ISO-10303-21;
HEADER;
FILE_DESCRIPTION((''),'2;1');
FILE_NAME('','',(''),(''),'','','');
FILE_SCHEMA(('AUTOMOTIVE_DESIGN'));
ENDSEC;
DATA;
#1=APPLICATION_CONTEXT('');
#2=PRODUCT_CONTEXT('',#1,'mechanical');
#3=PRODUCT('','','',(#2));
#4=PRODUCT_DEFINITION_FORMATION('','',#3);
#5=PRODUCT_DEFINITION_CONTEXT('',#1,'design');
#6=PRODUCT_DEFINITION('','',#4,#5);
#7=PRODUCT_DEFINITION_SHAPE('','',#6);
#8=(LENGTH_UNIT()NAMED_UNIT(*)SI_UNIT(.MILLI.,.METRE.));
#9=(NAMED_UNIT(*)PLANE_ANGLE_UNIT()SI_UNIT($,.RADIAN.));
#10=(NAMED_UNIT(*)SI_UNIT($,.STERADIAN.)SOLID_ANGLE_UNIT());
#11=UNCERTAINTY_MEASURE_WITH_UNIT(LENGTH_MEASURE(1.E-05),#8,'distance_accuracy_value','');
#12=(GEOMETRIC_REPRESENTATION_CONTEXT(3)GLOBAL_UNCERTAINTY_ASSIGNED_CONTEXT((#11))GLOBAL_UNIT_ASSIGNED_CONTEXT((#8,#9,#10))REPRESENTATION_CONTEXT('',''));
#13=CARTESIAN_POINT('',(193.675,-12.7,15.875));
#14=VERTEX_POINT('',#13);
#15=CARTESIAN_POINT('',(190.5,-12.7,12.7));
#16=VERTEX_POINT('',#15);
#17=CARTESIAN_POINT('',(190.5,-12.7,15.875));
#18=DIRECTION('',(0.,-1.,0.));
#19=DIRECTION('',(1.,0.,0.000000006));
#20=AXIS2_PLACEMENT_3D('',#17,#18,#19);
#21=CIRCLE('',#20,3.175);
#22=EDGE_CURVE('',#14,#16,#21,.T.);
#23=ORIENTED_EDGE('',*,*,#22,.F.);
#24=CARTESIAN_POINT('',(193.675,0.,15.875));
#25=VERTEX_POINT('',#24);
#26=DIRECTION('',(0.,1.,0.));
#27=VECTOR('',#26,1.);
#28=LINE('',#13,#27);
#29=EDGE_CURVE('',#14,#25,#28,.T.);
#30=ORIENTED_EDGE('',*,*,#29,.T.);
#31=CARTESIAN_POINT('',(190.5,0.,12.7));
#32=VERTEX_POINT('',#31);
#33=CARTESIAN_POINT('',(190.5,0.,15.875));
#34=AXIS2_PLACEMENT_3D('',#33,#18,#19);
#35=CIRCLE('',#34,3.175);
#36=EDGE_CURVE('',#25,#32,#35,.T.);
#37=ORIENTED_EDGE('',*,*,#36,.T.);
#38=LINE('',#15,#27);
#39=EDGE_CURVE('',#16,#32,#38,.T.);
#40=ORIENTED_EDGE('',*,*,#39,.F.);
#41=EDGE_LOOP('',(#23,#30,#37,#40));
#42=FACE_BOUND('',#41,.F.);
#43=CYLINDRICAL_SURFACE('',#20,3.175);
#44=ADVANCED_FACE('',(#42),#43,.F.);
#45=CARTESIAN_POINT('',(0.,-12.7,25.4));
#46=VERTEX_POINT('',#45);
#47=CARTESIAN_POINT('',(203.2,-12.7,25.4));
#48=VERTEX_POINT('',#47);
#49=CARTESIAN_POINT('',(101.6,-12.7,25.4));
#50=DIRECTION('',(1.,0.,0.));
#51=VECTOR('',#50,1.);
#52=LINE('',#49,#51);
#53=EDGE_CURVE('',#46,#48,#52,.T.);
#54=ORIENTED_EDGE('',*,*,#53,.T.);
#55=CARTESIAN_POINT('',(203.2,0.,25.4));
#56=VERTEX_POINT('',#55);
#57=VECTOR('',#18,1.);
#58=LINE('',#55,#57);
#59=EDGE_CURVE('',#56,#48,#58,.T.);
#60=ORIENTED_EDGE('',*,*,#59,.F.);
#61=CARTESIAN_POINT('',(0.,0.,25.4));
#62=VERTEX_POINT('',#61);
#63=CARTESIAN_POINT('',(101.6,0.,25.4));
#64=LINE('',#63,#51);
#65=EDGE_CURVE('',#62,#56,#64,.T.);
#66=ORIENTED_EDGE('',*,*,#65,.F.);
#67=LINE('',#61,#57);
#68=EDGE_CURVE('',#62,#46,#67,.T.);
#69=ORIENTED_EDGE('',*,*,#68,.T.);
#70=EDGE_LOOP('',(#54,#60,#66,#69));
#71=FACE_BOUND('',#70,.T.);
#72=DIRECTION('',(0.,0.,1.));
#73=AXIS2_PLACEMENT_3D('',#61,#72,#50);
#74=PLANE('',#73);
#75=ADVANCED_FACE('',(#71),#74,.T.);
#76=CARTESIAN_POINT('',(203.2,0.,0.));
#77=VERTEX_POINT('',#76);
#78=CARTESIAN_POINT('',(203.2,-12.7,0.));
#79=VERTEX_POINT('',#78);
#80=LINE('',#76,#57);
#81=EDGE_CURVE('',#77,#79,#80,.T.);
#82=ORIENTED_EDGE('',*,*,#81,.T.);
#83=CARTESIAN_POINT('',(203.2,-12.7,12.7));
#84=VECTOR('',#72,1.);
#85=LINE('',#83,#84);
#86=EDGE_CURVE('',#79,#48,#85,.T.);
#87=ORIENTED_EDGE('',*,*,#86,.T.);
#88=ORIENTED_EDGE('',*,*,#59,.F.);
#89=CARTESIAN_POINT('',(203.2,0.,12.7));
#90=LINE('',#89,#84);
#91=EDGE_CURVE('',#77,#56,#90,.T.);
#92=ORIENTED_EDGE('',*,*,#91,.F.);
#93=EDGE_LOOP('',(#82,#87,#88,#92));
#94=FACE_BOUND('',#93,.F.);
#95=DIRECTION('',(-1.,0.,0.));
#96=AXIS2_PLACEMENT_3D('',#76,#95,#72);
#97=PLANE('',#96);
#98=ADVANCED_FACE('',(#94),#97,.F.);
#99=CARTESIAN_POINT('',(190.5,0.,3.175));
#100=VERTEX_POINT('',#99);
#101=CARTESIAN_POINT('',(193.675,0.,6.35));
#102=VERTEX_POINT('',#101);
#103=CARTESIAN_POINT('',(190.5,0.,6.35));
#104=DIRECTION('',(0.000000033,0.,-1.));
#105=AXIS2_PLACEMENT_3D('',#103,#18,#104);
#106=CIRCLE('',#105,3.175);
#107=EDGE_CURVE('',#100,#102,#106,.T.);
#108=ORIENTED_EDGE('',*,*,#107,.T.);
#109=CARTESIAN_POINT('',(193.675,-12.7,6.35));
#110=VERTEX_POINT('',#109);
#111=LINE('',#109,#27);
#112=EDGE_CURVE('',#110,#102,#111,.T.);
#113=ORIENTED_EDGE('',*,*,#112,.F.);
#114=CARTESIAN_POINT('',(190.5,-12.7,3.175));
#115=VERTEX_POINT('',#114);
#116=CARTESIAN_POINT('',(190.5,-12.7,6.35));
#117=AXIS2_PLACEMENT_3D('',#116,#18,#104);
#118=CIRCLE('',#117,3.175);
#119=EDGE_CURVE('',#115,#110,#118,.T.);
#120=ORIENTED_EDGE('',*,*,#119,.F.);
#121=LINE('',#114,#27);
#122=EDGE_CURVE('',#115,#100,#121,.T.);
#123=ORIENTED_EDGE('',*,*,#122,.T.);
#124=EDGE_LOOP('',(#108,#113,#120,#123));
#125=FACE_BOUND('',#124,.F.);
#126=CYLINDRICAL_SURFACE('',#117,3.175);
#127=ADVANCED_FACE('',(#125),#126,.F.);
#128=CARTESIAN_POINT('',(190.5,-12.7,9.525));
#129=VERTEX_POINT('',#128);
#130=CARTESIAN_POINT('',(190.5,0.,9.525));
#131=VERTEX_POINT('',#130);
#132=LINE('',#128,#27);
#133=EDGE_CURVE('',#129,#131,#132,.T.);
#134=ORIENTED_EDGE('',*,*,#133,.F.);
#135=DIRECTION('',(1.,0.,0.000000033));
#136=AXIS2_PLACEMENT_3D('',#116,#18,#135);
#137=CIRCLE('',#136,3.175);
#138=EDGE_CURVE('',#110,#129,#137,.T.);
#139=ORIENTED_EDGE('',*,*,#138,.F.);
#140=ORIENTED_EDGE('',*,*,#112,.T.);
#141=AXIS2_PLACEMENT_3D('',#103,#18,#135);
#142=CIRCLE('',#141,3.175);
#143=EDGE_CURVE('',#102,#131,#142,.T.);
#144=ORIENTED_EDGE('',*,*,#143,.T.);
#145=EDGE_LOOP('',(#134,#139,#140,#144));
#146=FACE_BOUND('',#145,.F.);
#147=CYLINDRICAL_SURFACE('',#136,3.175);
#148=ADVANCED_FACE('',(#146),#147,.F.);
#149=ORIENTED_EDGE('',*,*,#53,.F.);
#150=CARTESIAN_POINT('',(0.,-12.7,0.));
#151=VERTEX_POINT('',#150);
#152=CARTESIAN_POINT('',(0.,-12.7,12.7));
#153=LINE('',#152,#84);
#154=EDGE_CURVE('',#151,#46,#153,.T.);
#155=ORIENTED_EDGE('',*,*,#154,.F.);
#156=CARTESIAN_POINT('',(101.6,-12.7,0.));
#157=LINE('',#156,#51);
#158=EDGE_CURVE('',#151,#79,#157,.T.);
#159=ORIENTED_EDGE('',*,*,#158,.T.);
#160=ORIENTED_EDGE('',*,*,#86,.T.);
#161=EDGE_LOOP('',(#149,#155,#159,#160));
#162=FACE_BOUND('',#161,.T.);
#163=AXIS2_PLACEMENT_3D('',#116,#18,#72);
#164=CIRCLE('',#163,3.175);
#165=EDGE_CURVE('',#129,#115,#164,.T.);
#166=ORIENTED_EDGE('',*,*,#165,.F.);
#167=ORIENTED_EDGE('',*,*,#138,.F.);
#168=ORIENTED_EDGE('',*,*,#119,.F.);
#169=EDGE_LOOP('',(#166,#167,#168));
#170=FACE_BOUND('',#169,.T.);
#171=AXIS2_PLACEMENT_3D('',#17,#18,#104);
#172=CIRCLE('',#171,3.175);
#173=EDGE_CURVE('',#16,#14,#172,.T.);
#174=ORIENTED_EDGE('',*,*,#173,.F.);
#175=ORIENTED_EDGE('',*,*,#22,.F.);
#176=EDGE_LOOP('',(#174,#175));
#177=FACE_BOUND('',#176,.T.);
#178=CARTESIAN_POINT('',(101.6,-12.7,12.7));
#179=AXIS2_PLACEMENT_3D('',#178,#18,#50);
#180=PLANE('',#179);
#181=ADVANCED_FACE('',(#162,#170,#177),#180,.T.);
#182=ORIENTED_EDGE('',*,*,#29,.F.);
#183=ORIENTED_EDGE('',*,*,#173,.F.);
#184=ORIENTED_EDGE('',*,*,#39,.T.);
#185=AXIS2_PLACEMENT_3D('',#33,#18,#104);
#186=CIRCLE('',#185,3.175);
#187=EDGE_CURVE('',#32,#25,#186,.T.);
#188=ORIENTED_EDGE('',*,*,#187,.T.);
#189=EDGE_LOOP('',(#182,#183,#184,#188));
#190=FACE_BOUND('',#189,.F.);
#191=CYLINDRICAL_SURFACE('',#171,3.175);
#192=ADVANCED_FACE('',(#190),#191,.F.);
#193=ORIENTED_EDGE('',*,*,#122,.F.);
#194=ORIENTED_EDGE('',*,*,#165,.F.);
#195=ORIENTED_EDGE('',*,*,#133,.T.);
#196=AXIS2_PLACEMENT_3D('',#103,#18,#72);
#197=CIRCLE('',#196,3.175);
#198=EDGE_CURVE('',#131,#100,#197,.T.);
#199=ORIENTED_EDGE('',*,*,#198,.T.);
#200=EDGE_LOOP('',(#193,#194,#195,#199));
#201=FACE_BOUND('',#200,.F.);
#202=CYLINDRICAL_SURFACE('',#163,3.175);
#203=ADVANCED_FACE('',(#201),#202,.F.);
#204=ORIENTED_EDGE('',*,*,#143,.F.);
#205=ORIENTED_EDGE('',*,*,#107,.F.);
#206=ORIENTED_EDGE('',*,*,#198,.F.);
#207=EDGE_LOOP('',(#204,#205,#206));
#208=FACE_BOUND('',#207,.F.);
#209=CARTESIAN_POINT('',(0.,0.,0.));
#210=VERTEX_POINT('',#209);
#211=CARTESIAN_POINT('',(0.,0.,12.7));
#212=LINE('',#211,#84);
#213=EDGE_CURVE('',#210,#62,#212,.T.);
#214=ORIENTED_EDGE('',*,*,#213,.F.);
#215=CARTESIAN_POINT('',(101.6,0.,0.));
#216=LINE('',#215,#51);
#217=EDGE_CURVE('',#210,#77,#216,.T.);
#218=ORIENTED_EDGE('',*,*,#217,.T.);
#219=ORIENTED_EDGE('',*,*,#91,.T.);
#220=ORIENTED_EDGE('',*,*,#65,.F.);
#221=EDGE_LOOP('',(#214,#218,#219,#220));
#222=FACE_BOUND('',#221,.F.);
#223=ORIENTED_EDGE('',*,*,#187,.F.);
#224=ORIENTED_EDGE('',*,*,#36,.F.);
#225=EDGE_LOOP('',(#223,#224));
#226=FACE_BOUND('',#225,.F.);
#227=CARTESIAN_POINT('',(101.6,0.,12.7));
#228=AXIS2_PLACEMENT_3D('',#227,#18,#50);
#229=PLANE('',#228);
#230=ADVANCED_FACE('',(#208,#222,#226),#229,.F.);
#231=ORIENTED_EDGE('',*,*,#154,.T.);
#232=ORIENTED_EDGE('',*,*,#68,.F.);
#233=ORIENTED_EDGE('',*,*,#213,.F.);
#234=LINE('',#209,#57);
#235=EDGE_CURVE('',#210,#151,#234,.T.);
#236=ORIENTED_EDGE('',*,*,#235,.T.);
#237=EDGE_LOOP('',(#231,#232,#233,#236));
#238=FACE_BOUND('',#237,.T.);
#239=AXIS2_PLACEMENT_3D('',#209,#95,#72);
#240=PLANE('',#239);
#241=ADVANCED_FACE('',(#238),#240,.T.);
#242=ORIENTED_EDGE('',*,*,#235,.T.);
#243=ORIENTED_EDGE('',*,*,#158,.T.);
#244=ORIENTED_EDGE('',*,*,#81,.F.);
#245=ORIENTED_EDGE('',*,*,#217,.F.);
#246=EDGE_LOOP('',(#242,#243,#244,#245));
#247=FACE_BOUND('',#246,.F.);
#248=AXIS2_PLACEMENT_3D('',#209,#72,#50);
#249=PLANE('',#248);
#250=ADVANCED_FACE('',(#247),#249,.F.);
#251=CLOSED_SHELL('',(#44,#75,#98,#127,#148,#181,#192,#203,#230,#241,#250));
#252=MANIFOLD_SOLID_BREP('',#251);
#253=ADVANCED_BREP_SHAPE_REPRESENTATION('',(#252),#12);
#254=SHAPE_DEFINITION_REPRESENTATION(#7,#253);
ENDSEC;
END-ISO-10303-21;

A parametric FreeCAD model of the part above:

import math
import FreeCAD as App
import Part
import Sketcher
Q = App.Units.Quantity


def add_polygon(sketch, points):
    """Adds a closed chain of lines whose ends are joined by coincident constraints."""
    first, n = sketch.GeometryCount, len(points)
    for a, b in zip(points, points[1:] + points[:1]):
        sketch.addGeometry(Part.LineSegment(App.Vector(*a, 0), App.Vector(*b, 0)), False)
    for i in range(n):
        sketch.addConstraint(Sketcher.Constraint("Coincident", first + i, 2, first + (i + 1) % n, 1))

doc = App.newDocument("Part")
body = doc.addObject("PartDesign::Body", "Body")

# Sketch on XZ plane
sketch1 = body.newObject("Sketcher::SketchObject", "Sketch")
sketch1.AttachmentSupport = (doc.getObject("XZ_Plane"), [""])
sketch1.MapMode = "FlatFace"
add_polygon(sketch1, [(0, 25.4), (0, 0), (203.2, 0), (203.2, 25.4)])  # lines 0-3
sketch1.addConstraint([
    Sketcher.Constraint("Vertical", 0),
    Sketcher.Constraint("Horizontal", 1),
    Sketcher.Constraint("Vertical", 2),
    Sketcher.Constraint("Horizontal", 3),
    Sketcher.Constraint("Coincident", 0, 2, -1, 1),
    Sketcher.Constraint("DistanceX", 1, 1, 1, 2, Q("8 in")),
    Sketcher.Constraint("DistanceY", 0, 2, 0, 1, Q("1 in")),
])
pad1 = body.newObject("PartDesign::Pad", "Pad")
pad1.Profile = sketch1
pad1.Length = Q("0.5 in")

# Sketch on XZ plane
sketch2 = body.newObject("Sketcher::SketchObject", "Sketch001")
sketch2.AttachmentSupport = (doc.getObject("XZ_Plane"), [""])
sketch2.MapMode = "FlatFace"
sketch2.AttachmentOffset = App.Placement(App.Vector(0, 0, 0.5 * 25.4), App.Rotation())
sketch2.addGeometry([
    Part.ArcOfCircle(Part.Circle(App.Vector(190.5, 15.875, 0), App.Vector(0, 0, 1), 3.175), math.radians(0), math.radians(270)),  # 0
    Part.ArcOfCircle(Part.Circle(App.Vector(190.5, 15.875, 0), App.Vector(0, 0, 1), 3.175), math.radians(-89.999998), math.radians(-0.000002)),  # 1
    Part.ArcOfCircle(Part.Circle(App.Vector(190.5, 6.35, 0), App.Vector(0, 0, 1), 3.175), math.radians(-89.999998), math.radians(-0.000002)),  # 2
    Part.ArcOfCircle(Part.Circle(App.Vector(190.5, 6.35, 0), App.Vector(0, 0, 1), 3.175), math.radians(0.000002), math.radians(89.999998)),  # 3
    Part.ArcOfCircle(Part.Circle(App.Vector(190.5, 6.35, 0), App.Vector(0, 0, 1), 3.175), math.radians(90), math.radians(270)),  # 4
], False)
sketch2.addConstraint([
    Sketcher.Constraint("Tangent", 0, 1, 1, 2),
    Sketcher.Constraint("Coincident", 1, 1, 0, 2),
    Sketcher.Constraint("Tangent", 2, 2, 3, 1),
    Sketcher.Constraint("Tangent", 3, 2, 4, 1),
    Sketcher.Constraint("Tangent", 4, 2, 2, 1),
    Sketcher.Constraint("Equal", 1, 2),
    Sketcher.Constraint("Horizontal", 1, 3, 0, 1),
    Sketcher.Constraint("Horizontal", 4, 3, 2, 2),
    Sketcher.Constraint("Vertical", 1, 3, 2, 3),
    Sketcher.Constraint("Vertical", 4, 3, 1, 1),
    Sketcher.Constraint("Vertical", 1, 1, 3, 2),
    Sketcher.Constraint("Vertical", 3, 2, 4, 2),
    Sketcher.Constraint("Radius", 0, Q("0.125 in")),
    Sketcher.Constraint("DistanceX", -1, 1, 0, 3, Q("7.5 in")),
    Sketcher.Constraint("DistanceY", -1, 1, 1, 1, Q("0.5 in")),
    Sketcher.Constraint("DistanceY", -1, 1, 2, 3, Q("0.25 in")),
])
pocket1 = body.newObject("PartDesign::Pocket", "Pocket")
pocket1.Profile = sketch2
pocket1.Length = Q("1 in")

doc.recompute()
